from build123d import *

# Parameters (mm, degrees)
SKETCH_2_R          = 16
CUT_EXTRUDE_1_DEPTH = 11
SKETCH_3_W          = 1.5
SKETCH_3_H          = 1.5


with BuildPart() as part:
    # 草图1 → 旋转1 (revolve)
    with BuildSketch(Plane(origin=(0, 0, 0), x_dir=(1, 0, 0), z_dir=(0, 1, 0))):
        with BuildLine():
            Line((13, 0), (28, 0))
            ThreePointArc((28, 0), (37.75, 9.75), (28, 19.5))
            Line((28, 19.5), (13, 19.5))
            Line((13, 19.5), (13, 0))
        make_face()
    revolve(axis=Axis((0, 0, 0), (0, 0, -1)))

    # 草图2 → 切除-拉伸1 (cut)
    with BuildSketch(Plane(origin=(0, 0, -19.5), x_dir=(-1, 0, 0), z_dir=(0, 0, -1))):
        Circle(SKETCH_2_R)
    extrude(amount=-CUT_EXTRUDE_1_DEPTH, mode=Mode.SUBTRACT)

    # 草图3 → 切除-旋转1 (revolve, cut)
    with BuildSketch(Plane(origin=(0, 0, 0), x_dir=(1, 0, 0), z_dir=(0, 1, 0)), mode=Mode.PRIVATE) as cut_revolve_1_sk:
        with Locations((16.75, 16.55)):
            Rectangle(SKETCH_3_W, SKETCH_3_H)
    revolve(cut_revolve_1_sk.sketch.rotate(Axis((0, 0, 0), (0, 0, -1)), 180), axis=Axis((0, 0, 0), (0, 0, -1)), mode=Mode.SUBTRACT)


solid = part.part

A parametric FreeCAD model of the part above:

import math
import FreeCAD as App
import Part
import Sketcher
from FreeCAD import Vector
Q = App.Units.Quantity

doc = App.newDocument("Part")
body = doc.addObject("PartDesign::Body", "Body")

sketch1 = body.newObject("Sketcher::SketchObject", "Sketch")
sketch1.AttachmentSupport = (doc.getObject("XZ_Plane"), [""])
sketch1.MapMode = "FlatFace"
sketch1.addGeometry([
    Part.LineSegment(Vector(13, 0, 0), Vector(28, 0, 0)),
    Part.ArcOfCircle(Part.Circle(Vector(28, -10, 0), Vector(0, 0, 1), 10), math.radians(-90), math.radians(90)),
    Part.LineSegment(Vector(28, -20, 0), Vector(13, -20, 0)),
    Part.LineSegment(Vector(13, -20, 0), Vector(13, 0, 0)),
], False)
sketch1.addConstraint([
    Sketcher.Constraint("Tangent", 0, 2, 1, 2),
    Sketcher.Constraint("Tangent", 1, 1, 2, 1),
    Sketcher.Constraint("Coincident", 2, 2, 3, 1),
    Sketcher.Constraint("Coincident", 3, 2, 0, 1),
    Sketcher.Constraint("Horizontal", 0),
    Sketcher.Constraint("Horizontal", 2),
    Sketcher.Constraint("Vertical", 3),
    Sketcher.Constraint("PointOnObject", 0, 2, -1),
    Sketcher.Constraint("DistanceX", 0, 1, 0, 2, Q("15 mm")),
    Sketcher.Constraint("Radius", 1, Q("9.75 mm")),
    Sketcher.Constraint("DistanceX", -1, 1, 1, 3, Q("28 mm")),
])
revolution = body.newObject("PartDesign::Revolution", "Revolution")
revolution.Profile = sketch1
revolution.ReferenceAxis = (sketch1, ["V_Axis"])
revolution.Angle = 360

sketch2 = body.newObject("Sketcher::SketchObject", "Sketch001")
sketch2.AttachmentSupport = (doc.getObject("XY_Plane"), [""])
sketch2.MapMode = "FlatFace"
sketch2.AttachmentOffset = App.Placement(Vector(0, 0, -19.5), App.Rotation())
sketch2.addGeometry(Part.Circle(Vector(0, 0, 0), Vector(0, 0, 1), 16), False)
sketch2.addConstraint([
    Sketcher.Constraint("Coincident", 0, 3, -1, 1),
    Sketcher.Constraint("Diameter", 0, Q("32 mm")),
])
pocket1 = body.newObject("PartDesign::Pocket", "Pocket")
pocket1.Profile = sketch2
pocket1.Length = 11
pocket1.Reversed = True

sketch3 = body.newObject("Sketcher::SketchObject", "Sketch002")
sketch3.AttachmentSupport = (doc.getObject("XZ_Plane"), [""])
sketch3.MapMode = "FlatFace"
sketch3.addGeometry([
    Part.LineSegment(Vector(16, -17.3, 0), Vector(16, -15.8, 0)),
    Part.LineSegment(Vector(16, -15.8, 0), Vector(17.5, -15.8, 0)),
    Part.LineSegment(Vector(17.5, -15.8, 0), Vector(17.5, -17.3, 0)),
    Part.LineSegment(Vector(17.5, -17.3, 0), Vector(16, -17.3, 0)),
], False)
sketch3.addConstraint([
    Sketcher.Constraint("Coincident", 0, 2, 1, 1),
    Sketcher.Constraint("Coincident", 1, 2, 2, 1),
    Sketcher.Constraint("Coincident", 2, 2, 3, 1),
    Sketcher.Constraint("Coincident", 3, 2, 0, 1),
    Sketcher.Constraint("Vertical", 0),
    Sketcher.Constraint("Horizontal", 1),
    Sketcher.Constraint("Vertical", 2),
    Sketcher.Constraint("Horizontal", 3),
    Sketcher.Constraint("Equal", 3, 0),
    Sketcher.Constraint("DistanceX", 1, 1, 1, 2, Q("1.5 mm")),
    Sketcher.Constraint("DistanceX", -1, 1, 0, 2, Q("16 mm")),
    Sketcher.Constraint("DistanceY", 0, 2, -1, 1, Q("15.8 mm")),
])
groove = body.newObject("PartDesign::Groove", "Groove")
groove.Profile = sketch3
groove.ReferenceAxis = (sketch3, ["V_Axis"])
groove.Angle = 360

doc.recompute()
